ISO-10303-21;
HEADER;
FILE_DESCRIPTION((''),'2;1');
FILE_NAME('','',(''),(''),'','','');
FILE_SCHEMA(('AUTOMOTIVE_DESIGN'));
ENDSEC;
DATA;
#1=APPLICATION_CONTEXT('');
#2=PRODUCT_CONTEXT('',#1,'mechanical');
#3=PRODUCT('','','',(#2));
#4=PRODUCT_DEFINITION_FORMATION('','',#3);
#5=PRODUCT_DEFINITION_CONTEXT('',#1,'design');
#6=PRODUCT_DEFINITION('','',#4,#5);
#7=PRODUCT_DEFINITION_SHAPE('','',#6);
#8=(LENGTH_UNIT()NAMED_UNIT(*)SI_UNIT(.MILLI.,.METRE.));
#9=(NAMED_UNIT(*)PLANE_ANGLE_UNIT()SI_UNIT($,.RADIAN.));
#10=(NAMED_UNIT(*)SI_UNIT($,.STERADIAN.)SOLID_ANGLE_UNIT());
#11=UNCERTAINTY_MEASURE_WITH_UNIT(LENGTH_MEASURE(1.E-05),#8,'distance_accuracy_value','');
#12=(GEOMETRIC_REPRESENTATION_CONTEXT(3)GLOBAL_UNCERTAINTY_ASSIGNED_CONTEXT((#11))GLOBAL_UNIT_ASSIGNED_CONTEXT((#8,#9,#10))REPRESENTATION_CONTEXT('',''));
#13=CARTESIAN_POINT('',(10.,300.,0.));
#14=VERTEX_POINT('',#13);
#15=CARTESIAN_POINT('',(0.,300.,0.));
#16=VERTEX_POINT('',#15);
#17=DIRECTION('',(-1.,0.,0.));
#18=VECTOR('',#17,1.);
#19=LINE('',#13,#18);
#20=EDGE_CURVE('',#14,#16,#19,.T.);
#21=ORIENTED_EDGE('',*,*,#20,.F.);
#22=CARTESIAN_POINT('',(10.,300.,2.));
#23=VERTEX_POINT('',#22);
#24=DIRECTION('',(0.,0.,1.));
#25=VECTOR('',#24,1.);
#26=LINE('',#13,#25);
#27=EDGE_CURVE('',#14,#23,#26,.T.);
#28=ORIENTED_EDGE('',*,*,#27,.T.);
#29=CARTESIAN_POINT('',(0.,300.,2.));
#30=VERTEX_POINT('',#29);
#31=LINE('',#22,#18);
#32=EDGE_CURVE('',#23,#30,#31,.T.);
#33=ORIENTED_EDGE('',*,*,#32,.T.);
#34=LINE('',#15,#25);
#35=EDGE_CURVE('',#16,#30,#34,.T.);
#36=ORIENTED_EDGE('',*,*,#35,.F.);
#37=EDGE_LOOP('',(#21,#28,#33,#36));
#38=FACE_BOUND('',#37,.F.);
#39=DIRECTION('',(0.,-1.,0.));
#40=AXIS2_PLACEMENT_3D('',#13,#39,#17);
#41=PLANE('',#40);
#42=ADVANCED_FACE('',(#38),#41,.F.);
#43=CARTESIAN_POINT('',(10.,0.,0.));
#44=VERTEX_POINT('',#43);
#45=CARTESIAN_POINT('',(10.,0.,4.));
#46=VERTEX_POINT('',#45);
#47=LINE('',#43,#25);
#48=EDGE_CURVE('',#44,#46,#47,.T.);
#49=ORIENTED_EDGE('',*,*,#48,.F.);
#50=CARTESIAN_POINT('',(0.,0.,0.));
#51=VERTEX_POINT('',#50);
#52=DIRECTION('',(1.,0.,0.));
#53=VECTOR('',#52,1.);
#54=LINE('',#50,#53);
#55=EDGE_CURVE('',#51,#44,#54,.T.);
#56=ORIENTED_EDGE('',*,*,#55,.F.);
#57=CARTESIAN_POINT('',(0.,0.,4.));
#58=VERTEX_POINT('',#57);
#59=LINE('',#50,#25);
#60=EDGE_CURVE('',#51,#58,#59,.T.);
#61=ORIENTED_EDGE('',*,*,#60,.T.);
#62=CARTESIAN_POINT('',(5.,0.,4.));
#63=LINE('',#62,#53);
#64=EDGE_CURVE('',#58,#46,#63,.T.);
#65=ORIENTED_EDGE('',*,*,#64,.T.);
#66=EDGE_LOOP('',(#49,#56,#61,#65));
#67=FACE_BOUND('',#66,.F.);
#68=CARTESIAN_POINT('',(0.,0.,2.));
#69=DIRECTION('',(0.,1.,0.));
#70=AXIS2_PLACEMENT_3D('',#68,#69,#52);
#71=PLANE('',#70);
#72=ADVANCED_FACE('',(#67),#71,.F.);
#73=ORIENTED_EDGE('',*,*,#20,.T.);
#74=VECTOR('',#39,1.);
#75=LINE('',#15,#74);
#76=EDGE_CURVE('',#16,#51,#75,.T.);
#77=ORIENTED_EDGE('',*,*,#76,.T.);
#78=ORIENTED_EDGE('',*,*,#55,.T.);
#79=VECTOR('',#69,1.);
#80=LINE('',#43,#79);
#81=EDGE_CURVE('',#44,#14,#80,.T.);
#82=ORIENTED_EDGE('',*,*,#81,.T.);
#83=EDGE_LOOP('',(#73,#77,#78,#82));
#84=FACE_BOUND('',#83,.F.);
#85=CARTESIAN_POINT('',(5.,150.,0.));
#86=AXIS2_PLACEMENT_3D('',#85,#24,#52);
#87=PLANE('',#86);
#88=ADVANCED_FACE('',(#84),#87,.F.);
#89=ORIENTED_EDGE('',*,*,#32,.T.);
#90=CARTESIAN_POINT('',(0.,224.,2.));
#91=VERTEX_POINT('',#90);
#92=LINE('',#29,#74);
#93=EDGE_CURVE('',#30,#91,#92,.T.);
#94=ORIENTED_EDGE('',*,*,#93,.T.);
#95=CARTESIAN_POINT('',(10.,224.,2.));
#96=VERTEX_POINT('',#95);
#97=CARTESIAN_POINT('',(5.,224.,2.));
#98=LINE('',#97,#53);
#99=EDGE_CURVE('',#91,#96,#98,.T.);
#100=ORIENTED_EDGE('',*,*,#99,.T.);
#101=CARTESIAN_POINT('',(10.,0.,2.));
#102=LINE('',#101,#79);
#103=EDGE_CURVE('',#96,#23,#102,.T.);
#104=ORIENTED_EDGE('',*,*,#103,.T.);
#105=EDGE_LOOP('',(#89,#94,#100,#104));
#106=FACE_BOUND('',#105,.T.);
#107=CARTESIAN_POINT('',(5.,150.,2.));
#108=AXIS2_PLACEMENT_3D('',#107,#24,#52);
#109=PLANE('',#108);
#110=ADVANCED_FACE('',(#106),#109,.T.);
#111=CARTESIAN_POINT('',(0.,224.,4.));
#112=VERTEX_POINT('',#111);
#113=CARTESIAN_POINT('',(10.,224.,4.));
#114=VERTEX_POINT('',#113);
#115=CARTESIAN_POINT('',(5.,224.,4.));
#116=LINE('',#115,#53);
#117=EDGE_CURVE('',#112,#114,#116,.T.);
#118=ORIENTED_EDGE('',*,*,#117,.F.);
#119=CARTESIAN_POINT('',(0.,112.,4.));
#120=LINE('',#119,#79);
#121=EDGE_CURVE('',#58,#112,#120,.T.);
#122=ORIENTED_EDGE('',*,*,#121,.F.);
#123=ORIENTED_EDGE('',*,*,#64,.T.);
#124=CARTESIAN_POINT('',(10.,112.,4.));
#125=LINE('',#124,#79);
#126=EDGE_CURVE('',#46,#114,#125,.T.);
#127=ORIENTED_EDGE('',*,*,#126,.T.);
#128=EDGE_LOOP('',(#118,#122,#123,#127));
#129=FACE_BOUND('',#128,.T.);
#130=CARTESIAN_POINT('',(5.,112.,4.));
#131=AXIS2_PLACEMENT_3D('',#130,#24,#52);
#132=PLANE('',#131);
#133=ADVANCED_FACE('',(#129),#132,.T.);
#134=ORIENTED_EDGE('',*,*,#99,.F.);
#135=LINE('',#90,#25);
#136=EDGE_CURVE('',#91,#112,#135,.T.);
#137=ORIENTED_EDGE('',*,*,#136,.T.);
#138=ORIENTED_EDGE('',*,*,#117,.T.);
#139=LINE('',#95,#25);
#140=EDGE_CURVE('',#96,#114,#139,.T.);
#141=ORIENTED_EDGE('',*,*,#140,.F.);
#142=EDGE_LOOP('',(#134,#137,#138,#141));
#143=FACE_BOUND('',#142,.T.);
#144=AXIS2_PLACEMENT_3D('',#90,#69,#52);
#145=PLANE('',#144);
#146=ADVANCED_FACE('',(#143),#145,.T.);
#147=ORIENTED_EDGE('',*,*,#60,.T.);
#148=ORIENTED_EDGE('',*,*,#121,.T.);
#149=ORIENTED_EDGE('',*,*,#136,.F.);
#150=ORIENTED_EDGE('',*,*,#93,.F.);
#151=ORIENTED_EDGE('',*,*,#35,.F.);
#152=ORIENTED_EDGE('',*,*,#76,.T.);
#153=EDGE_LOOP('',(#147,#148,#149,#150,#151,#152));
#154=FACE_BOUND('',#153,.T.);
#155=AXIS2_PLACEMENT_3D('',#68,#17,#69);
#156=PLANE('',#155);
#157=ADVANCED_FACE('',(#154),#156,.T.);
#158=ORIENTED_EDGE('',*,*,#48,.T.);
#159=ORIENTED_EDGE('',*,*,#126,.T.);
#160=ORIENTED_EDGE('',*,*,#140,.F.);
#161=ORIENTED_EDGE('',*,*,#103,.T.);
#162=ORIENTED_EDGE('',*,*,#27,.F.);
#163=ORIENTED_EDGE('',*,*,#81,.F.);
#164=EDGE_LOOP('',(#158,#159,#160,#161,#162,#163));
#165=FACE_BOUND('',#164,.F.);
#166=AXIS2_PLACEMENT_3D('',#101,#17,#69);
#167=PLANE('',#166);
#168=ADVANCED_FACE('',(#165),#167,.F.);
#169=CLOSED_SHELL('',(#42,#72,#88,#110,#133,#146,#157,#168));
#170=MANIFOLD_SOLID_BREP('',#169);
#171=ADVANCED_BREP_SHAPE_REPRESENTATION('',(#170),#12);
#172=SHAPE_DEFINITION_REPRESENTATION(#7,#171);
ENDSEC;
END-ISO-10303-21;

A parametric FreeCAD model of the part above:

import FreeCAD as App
import Part
import Sketcher

V = App.Vector

doc = App.newDocument("Part")
body = doc.addObject("PartDesign::Body", "Body")

# Sketch on XY plane
sketch1 = body.newObject("Sketcher::SketchObject", "Sketch")
sketch1.AttachmentSupport = (doc.getObject("XY_Plane"), [""])
sketch1.MapMode = "FlatFace"
sketch1.addGeometry([
    Part.LineSegment(V(10, 300, 0), V(0, 300, 0)),
    Part.LineSegment(V(0, 300, 0), V(0, 0, 0)),
    Part.LineSegment(V(0, 0, 0), V(10, 0, 0)),
    Part.LineSegment(V(10, 0, 0), V(10, 300, 0)),
], False)
sketch1.addConstraint([
    Sketcher.Constraint("Coincident", 0, 2, 1, 1),
    Sketcher.Constraint("Coincident", 1, 2, 2, 1),
    Sketcher.Constraint("Coincident", 2, 2, 3, 1),
    Sketcher.Constraint("Coincident", 3, 2, 0, 1),
    Sketcher.Constraint("Horizontal", 0),
    Sketcher.Constraint("Vertical", 1),
    Sketcher.Constraint("Horizontal", 2),
    Sketcher.Constraint("Vertical", 3),
    Sketcher.Constraint("Coincident", 1, 2, -1, 1),
    Sketcher.Constraint("DistanceX", 0, 2, 0, 1, 10.0),
    Sketcher.Constraint("DistanceY", 1, 2, 1, 1, 300.0),
])
pad1 = body.newObject("PartDesign::Pad", "Pad")
pad1.Profile = sketch1
pad1.Length = 2

# Sketch on XY plane
sketch2 = body.newObject("Sketcher::SketchObject", "Sketch001")
sketch2.AttachmentSupport = (doc.getObject("XY_Plane"), [""])
sketch2.MapMode = "FlatFace"
sketch2.AttachmentOffset = App.Placement(V(0, 0, 2), App.Rotation())
sketch2.addGeometry([
    Part.LineSegment(V(0, 224, 0), V(0, 0, 0)),
    Part.LineSegment(V(0, 0, 0), V(10, 0, 0)),
    Part.LineSegment(V(10, 0, 0), V(10, 224, 0)),
    Part.LineSegment(V(10, 224, 0), V(0, 224, 0)),
], False)
sketch2.addConstraint([
    Sketcher.Constraint("Coincident", 0, 2, 1, 1),
    Sketcher.Constraint("Coincident", 1, 2, 2, 1),
    Sketcher.Constraint("Coincident", 2, 2, 3, 1),
    Sketcher.Constraint("Coincident", 3, 2, 0, 1),
    Sketcher.Constraint("Vertical", 0),
    Sketcher.Constraint("Horizontal", 1),
    Sketcher.Constraint("Vertical", 2),
    Sketcher.Constraint("Horizontal", 3),
    Sketcher.Constraint("Coincident", 0, 2, -1, 1),
    Sketcher.Constraint("DistanceX", 1, 1, 1, 2, 10.0),
    Sketcher.Constraint("DistanceY", 0, 2, 0, 1, 224.0),
])
pad2 = body.newObject("PartDesign::Pad", "Pad001")
pad2.Profile = sketch2
pad2.Length = 2

doc.recompute()
